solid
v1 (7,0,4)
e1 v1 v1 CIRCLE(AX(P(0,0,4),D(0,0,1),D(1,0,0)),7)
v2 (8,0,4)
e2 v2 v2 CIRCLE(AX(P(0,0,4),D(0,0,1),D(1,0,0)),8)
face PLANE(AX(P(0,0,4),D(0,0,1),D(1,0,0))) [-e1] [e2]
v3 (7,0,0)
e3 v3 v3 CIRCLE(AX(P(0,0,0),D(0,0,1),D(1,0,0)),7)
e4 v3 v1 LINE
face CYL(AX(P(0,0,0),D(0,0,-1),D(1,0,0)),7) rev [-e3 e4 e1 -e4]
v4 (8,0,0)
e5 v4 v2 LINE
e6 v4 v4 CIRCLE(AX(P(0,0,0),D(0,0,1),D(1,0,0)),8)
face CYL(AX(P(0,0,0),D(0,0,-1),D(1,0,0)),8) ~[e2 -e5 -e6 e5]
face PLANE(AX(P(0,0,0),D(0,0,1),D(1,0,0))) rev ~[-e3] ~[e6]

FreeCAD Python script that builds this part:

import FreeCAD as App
import Part
import Sketcher
from FreeCAD import Vector
Q = App.Units.Quantity

doc = App.newDocument("Part")
body = doc.addObject("PartDesign::Body", "Body")

sketch1 = body.newObject("Sketcher::SketchObject", "Sketch")
sketch1.AttachmentSupport = (doc.getObject("XY_Plane"), [""])
sketch1.MapMode = "FlatFace"
sketch1.addGeometry(Part.Circle(Vector(0, 0, 0), Vector(0, 0, 1), 8), False)
sketch1.addGeometry(Part.Circle(Vector(0, 0, 0), Vector(0, 0, 1), 7), False)
sketch1.addConstraint(Sketcher.Constraint("Coincident", 0, 3, -1, 1))
sketch1.addConstraint(Sketcher.Constraint("Coincident", 1, 3, -1, 1))
sketch1.addConstraint(Sketcher.Constraint("Diameter", 0, Q("16 mm")))
sketch1.addConstraint(Sketcher.Constraint("Diameter", 1, Q("14 mm")))
pad1 = body.newObject("PartDesign::Pad", "Pad")
pad1.Profile = sketch1
pad1.Length = 4

doc.recompute()
